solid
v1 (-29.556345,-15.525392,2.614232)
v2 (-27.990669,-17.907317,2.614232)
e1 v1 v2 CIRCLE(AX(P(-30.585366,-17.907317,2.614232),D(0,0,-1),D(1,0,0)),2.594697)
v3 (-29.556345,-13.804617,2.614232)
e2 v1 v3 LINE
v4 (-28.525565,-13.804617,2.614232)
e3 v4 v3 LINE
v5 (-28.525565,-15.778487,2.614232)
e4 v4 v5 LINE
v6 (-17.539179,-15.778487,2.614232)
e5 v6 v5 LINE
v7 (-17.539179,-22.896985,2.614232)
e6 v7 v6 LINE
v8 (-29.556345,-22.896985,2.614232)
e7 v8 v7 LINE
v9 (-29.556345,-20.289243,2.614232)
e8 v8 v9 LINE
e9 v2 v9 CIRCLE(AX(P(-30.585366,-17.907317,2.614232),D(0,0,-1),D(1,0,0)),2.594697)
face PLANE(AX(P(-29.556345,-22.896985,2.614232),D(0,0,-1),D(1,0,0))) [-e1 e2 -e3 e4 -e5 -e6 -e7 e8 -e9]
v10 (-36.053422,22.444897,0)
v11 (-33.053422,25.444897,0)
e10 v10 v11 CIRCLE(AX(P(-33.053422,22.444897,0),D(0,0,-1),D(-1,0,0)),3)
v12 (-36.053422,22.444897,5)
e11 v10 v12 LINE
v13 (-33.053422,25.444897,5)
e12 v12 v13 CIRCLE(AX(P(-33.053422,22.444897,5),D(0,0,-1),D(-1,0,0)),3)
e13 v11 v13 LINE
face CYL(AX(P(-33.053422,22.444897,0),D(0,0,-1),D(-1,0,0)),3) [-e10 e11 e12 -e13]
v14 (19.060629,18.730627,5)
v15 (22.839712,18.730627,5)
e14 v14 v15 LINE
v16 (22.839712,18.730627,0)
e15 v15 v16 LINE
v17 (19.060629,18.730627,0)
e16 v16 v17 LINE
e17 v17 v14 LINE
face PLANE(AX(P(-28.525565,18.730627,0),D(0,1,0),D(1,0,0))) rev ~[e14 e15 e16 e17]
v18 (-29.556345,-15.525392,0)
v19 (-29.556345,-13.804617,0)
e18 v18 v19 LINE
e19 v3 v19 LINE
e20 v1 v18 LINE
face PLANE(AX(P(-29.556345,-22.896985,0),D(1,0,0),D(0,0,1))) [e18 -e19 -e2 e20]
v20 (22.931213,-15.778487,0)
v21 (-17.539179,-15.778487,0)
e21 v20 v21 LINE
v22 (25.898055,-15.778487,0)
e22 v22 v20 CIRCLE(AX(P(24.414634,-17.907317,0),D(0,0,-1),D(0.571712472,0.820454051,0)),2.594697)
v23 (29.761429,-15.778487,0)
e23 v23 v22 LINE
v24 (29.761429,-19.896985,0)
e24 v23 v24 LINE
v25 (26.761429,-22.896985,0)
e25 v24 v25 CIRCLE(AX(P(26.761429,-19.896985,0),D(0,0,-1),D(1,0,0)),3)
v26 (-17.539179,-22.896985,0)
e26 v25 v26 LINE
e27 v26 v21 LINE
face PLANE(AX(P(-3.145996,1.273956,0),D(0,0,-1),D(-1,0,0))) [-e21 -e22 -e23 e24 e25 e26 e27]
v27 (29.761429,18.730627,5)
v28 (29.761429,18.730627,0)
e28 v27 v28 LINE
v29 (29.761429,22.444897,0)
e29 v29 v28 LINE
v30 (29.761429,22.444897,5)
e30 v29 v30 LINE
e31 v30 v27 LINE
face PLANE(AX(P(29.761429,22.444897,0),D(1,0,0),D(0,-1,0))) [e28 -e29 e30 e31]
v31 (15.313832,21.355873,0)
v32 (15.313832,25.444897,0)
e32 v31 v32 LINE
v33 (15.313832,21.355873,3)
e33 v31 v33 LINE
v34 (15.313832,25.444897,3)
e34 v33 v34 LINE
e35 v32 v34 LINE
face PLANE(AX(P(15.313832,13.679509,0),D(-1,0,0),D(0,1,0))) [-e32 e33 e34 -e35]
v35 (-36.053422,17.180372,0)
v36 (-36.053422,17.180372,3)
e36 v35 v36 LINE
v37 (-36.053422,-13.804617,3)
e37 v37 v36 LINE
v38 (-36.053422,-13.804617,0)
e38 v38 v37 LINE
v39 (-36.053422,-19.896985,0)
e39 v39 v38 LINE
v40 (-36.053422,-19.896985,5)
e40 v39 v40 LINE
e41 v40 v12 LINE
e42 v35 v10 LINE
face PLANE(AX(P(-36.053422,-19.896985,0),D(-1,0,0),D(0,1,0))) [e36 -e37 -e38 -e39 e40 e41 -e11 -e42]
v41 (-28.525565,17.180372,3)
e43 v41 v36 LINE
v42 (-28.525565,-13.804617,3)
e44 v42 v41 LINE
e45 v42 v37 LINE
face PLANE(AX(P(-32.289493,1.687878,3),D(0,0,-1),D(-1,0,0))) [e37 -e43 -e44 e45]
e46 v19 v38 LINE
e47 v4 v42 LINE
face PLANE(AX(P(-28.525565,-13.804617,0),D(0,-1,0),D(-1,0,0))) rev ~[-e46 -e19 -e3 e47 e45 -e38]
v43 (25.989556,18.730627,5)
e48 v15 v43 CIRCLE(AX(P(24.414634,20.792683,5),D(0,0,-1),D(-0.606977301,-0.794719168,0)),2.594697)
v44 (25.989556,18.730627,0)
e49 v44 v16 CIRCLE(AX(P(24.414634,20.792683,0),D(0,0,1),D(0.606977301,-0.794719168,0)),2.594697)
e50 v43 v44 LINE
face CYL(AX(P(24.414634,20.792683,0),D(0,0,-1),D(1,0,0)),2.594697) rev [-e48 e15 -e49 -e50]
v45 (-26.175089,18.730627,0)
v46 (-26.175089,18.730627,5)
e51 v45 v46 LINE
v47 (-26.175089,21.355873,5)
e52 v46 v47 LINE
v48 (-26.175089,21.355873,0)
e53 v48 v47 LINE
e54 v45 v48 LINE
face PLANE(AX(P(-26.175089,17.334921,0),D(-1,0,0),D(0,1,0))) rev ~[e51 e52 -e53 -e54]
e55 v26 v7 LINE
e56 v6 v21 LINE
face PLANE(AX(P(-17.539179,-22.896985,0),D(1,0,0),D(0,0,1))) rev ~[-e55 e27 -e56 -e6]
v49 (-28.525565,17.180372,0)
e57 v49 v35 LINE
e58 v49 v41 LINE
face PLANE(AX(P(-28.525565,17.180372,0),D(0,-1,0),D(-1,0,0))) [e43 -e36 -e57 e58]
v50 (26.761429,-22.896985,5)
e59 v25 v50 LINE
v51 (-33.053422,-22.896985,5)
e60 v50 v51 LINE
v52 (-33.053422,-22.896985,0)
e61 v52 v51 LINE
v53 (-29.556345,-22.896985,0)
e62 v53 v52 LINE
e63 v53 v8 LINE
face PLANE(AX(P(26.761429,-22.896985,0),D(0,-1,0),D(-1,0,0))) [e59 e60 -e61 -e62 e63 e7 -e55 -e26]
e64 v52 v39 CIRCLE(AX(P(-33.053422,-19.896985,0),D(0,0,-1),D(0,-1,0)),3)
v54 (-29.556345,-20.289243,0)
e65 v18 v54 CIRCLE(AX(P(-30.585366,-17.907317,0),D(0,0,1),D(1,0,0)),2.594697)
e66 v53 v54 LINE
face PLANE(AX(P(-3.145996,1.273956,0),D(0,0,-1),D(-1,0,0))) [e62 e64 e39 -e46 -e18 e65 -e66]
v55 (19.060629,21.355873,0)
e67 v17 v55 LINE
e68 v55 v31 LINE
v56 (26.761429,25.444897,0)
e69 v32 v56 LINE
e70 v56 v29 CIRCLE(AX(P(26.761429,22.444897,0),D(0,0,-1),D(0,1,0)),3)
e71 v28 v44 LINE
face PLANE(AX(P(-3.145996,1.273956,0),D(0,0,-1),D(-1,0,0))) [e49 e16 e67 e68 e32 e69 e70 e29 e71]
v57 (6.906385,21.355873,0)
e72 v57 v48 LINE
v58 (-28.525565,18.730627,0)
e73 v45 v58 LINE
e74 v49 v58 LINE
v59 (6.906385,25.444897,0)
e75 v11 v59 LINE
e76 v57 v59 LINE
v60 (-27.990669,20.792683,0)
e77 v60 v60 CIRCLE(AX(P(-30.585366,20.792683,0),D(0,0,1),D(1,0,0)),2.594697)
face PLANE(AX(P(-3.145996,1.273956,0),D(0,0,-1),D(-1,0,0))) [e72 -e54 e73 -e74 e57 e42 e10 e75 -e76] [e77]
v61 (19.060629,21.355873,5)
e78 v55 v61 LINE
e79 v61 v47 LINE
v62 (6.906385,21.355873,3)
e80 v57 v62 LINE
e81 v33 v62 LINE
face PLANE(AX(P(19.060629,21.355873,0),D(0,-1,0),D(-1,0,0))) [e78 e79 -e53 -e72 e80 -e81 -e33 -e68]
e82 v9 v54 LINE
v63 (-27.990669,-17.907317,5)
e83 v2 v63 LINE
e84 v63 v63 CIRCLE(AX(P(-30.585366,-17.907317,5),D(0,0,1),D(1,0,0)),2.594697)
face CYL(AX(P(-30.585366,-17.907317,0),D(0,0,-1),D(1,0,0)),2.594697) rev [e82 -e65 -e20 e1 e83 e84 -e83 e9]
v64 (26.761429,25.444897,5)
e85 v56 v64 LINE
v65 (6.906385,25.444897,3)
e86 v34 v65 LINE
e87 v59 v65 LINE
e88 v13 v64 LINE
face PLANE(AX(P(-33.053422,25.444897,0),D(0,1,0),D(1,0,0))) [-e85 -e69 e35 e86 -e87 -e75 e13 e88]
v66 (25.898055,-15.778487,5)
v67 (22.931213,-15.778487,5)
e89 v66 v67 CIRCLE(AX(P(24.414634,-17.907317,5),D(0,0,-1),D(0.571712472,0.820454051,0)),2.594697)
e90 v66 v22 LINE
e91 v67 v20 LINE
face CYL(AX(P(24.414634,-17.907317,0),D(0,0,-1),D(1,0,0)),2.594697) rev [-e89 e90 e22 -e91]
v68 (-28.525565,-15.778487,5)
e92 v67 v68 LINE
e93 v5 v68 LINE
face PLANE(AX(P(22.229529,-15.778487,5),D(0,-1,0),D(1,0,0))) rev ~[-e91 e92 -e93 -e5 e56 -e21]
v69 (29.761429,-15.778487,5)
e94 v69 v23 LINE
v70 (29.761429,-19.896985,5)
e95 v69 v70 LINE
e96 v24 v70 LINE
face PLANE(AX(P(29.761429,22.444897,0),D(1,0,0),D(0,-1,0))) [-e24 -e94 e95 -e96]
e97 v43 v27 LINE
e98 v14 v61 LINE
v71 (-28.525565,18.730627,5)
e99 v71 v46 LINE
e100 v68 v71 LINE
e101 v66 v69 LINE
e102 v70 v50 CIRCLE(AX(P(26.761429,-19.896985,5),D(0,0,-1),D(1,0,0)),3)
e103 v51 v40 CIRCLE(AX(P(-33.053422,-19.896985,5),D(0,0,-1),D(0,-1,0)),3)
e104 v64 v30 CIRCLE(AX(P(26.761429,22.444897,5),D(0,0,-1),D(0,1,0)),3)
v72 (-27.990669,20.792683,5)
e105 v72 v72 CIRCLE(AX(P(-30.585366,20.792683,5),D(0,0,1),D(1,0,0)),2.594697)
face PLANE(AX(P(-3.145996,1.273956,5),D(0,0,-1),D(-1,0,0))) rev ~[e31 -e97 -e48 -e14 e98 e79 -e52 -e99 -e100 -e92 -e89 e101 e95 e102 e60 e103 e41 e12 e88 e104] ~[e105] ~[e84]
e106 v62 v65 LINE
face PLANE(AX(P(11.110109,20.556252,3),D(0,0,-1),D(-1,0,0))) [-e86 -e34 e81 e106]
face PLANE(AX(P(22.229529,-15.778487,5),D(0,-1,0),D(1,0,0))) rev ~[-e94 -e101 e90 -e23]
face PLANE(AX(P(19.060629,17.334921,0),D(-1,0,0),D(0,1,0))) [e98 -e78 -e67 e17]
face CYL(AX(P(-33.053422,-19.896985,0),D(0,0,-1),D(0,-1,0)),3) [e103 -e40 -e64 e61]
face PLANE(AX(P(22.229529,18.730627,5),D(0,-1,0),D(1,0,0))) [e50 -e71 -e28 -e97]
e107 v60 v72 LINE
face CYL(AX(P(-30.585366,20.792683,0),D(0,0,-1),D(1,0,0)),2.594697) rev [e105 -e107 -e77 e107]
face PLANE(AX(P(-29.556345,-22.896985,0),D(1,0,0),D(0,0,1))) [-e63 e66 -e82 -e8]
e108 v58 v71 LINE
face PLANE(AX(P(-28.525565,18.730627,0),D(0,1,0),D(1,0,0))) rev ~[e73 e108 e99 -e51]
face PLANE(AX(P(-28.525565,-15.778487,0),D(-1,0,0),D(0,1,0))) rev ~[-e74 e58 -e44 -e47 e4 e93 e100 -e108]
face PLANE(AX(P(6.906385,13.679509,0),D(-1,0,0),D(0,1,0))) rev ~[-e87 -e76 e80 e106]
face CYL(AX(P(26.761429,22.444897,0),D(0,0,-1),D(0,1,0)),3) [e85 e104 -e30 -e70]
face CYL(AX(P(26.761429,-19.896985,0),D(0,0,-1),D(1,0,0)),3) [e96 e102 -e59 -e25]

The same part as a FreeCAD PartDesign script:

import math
import FreeCAD as App
import Part
import Sketcher
from FreeCAD import Vector
Q = App.Units.Quantity

doc = App.newDocument("Part")
body = doc.addObject("PartDesign::Body", "Body")

sketch1 = body.newObject("Sketcher::SketchObject", "Sketch")
sketch1.AttachmentSupport = (doc.getObject("XY_Plane"), [""])
sketch1.MapMode = "FlatFace"
sketch1.addGeometry([
    Part.LineSegment(Vector(26.8, 25.4, 0), Vector(-33.1, 25.4, 0)),
    Part.ArcOfCircle(Part.Circle(Vector(-33.1, 22.4, 0), Vector(0, 0, 1), 3), math.radians(90), math.radians(180)),
    Part.LineSegment(Vector(-36.1, 22.4, 0), Vector(-36.1, -19.9, 0)),
    Part.ArcOfCircle(Part.Circle(Vector(-33.1, -19.9, 0), Vector(0, 0, 1), 3), math.radians(180), math.radians(270)),
    Part.LineSegment(Vector(-33.1, -22.9, 0), Vector(26.8, -22.9, 0)),
    Part.ArcOfCircle(Part.Circle(Vector(26.8, -19.9, 0), Vector(0, 0, 1), 3), math.radians(-90), math.radians(0)),
    Part.LineSegment(Vector(29.8, -19.9, 0), Vector(29.8, 22.4, 0)),
    Part.ArcOfCircle(Part.Circle(Vector(26.8, 22.4, 0), Vector(0, 0, 1), 3), math.radians(0), math.radians(90)),
    Part.Circle(Vector(24.4, -17.9, 0), Vector(0, 0, 1), 2.6),
    Part.Circle(Vector(-30.6, -17.9, 0), Vector(0, 0, 1), 2.6),
    Part.Circle(Vector(24.4, 20.8, 0), Vector(0, 0, 1), 2.6),
    Part.LineSegment(Vector(-28.5, -15.8, 0), Vector(-28.5, 18.7, 0)),
    Part.LineSegment(Vector(-28.5, 18.7, 0), Vector(22.2, 18.7, 0)),
    Part.LineSegment(Vector(22.2, 18.7, 0), Vector(22.2, -15.8, 0)),
    Part.LineSegment(Vector(22.2, -15.8, 0), Vector(-28.5, -15.8, 0)),
    Part.Circle(Vector(-30.6, 20.8, 0), Vector(0, 0, 1), 2.6),
], False)
sketch1.addConstraint([
    Sketcher.Constraint("Tangent", 0, 2, 1, 1),
    Sketcher.Constraint("Tangent", 1, 2, 2, 1),
    Sketcher.Constraint("Tangent", 2, 2, 3, 1),
    Sketcher.Constraint("Tangent", 3, 2, 4, 1),
    Sketcher.Constraint("Tangent", 4, 2, 5, 1),
    Sketcher.Constraint("Tangent", 5, 2, 6, 1),
    Sketcher.Constraint("Tangent", 6, 2, 7, 1),
    Sketcher.Constraint("Tangent", 7, 2, 0, 1),
    Sketcher.Constraint("Coincident", 11, 2, 12, 1),
    Sketcher.Constraint("Coincident", 12, 2, 13, 1),
    Sketcher.Constraint("Coincident", 13, 2, 14, 1),
    Sketcher.Constraint("Coincident", 14, 2, 11, 1),
    Sketcher.Constraint("Horizontal", 0),
    Sketcher.Constraint("Vertical", 2),
    Sketcher.Constraint("Horizontal", 4),
    Sketcher.Constraint("Vertical", 6),
    Sketcher.Constraint("Vertical", 11),
    Sketcher.Constraint("Horizontal", 12),
    Sketcher.Constraint("Vertical", 13),
    Sketcher.Constraint("Horizontal", 14),
    Sketcher.Constraint("Equal", 1, 3),
    Sketcher.Constraint("Equal", 3, 5),
    Sketcher.Constraint("Equal", 5, 7),
    Sketcher.Constraint("Equal", 8, 9),
    Sketcher.Constraint("Equal", 9, 10),
    Sketcher.Constraint("Equal", 10, 15),
    Sketcher.Constraint("Horizontal", 8, 3, 9, 3),
    Sketcher.Constraint("Horizontal", 10, 3, 15, 3),
    Sketcher.Constraint("Vertical", 8, 3, 10, 3),
    Sketcher.Constraint("Vertical", 9, 3, 15, 3),
    Sketcher.Constraint("Radius", 1, Q("3 mm")),
    Sketcher.Constraint("DistanceX", 9, 3, 8, 3, Q("55 mm")),
    Sketcher.Constraint("DistanceY", 8, 3, 10, 3, Q("38.7 mm")),
    Sketcher.Constraint("Diameter", 8, Q("5.189394 mm")),
    Sketcher.Constraint("DistanceX", 0, 2, 0, 1, Q("59.814851 mm")),
    Sketcher.Constraint("DistanceX", 15, 3, 11, 2, Q("2.059801 mm")),
    Sketcher.Constraint("DistanceX", 12, 2, 7, 3, Q("4.5319 mm")),
    Sketcher.Constraint("DistanceX", 12, 1, 12, 2, Q("50.755093 mm")),
    Sketcher.Constraint("DistanceY", 2, 2, 2, 1, Q("42.341882 mm")),
    Sketcher.Constraint("DistanceY", 11, 1, 11, 2, Q("34.509115 mm")),
    Sketcher.Constraint("DistanceX", -1, 1, 5, 3, Q("26.761429 mm")),
    Sketcher.Constraint("DistanceY", 11, 2, 1, 3, Q("3.71427 mm")),
    Sketcher.Constraint("DistanceY", 8, 3, 13, 2, Q("2.12883 mm")),
    Sketcher.Constraint("DistanceY", -1, 1, 1, 3, Q("22.444897 mm")),
])
pad1 = body.newObject("PartDesign::Pad", "Pad")
pad1.Profile = sketch1
pad1.Length = 5

sketch2 = body.newObject("Sketcher::SketchObject", "Sketch001")
sketch2.AttachmentSupport = (doc.getObject("XZ_Plane"), [""])
sketch2.MapMode = "FlatFace"
sketch2.AttachmentOffset = App.Placement(Vector(0, 0, 22.896985), App.Rotation())
sketch2.addGeometry([
    Part.LineSegment(Vector(-29.6, 2.6, 0), Vector(-29.6, 0, 0)),
    Part.LineSegment(Vector(-29.6, 0, 0), Vector(-17.5, 0, 0)),
    Part.LineSegment(Vector(-17.5, 0, 0), Vector(-17.5, 2.6, 0)),
    Part.LineSegment(Vector(-17.5, 2.6, 0), Vector(-29.6, 2.6, 0)),
], False)
sketch2.addConstraint([
    Sketcher.Constraint("Coincident", 0, 2, 1, 1),
    Sketcher.Constraint("Coincident", 1, 2, 2, 1),
    Sketcher.Constraint("Coincident", 2, 2, 3, 1),
    Sketcher.Constraint("Coincident", 3, 2, 0, 1),
    Sketcher.Constraint("Vertical", 0),
    Sketcher.Constraint("Horizontal", 1),
    Sketcher.Constraint("Vertical", 2),
    Sketcher.Constraint("Horizontal", 3),
    Sketcher.Constraint("PointOnObject", 0, 2, -1),
    Sketcher.Constraint("DistanceY", 0, 2, 0, 1, Q("2.614232 mm")),
    Sketcher.Constraint("DistanceX", 1, 1, 1, 2, Q("12.017165 mm")),
    Sketcher.Constraint("DistanceX", 1, 2, -1, 1, Q("17.539179 mm")),
])
pocket1 = body.newObject("PartDesign::Pocket", "Pocket")
pocket1.Profile = sketch2
pocket1.Length = 10

sketch3 = body.newObject("Sketcher::SketchObject", "Sketch002")
sketch3.AttachmentSupport = (doc.getObject("XY_Plane"), [""])
sketch3.MapMode = "FlatFace"
sketch3.addGeometry([
    Part.LineSegment(Vector(-29, 17, 0), Vector(-29, -14, 0)),
    Part.LineSegment(Vector(-29, -14, 0), Vector(-36, -14, 0)),
    Part.LineSegment(Vector(-36, -14, 0), Vector(-36, 17, 0)),
    Part.LineSegment(Vector(-36, 17, 0), Vector(-29, 17, 0)),
], False)
sketch3.addConstraint([
    Sketcher.Constraint("Coincident", 0, 2, 1, 1),
    Sketcher.Constraint("Coincident", 1, 2, 2, 1),
    Sketcher.Constraint("Coincident", 2, 2, 3, 1),
    Sketcher.Constraint("Coincident", 3, 2, 0, 1),
    Sketcher.Constraint("Vertical", 0),
    Sketcher.Constraint("Horizontal", 1),
    Sketcher.Constraint("Vertical", 2),
    Sketcher.Constraint("Horizontal", 3),
    Sketcher.Constraint("DistanceY", 0, 2, 0, 1, Q("30.984989 mm")),
    Sketcher.Constraint("DistanceX", 1, 2, 1, 1, Q("7.527857 mm")),
    Sketcher.Constraint("DistanceX", 0, 2, -1, 1, Q("28.525565 mm")),
    Sketcher.Constraint("DistanceY", 0, 2, -1, 1, Q("13.804617 mm")),
])
pocket2 = body.newObject("PartDesign::Pocket", "Pocket001")
pocket2.Profile = sketch3
pocket2.Length = 3
pocket2.Reversed = True

sketch4 = body.newObject("Sketcher::SketchObject", "Sketch003")
sketch4.AttachmentSupport = (doc.getObject("XY_Plane"), [""])
sketch4.MapMode = "FlatFace"
sketch4.AttachmentOffset = App.Placement(Vector(0, 0, 5), App.Rotation())
sketch4.addGeometry([
    Part.LineSegment(Vector(22, 19, 0), Vector(22, -16, 0)),
    Part.LineSegment(Vector(22, -16, 0), Vector(34, -16, 0)),
    Part.LineSegment(Vector(34, -16, 0), Vector(34, 19, 0)),
    Part.LineSegment(Vector(34, 19, 0), Vector(22, 19, 0)),
], False)
sketch4.addConstraint([
    Sketcher.Constraint("Coincident", 0, 2, 1, 1),
    Sketcher.Constraint("Coincident", 1, 2, 2, 1),
    Sketcher.Constraint("Coincident", 2, 2, 3, 1),
    Sketcher.Constraint("Coincident", 3, 2, 0, 1),
    Sketcher.Constraint("Vertical", 0),
    Sketcher.Constraint("Horizontal", 1),
    Sketcher.Constraint("Vertical", 2),
    Sketcher.Constraint("Horizontal", 3),
    Sketcher.Constraint("DistanceX", 1, 1, 1, 2, Q("11.818287 mm")),
    Sketcher.Constraint("DistanceY", 0, 2, 0, 1, Q("34.509115 mm")),
    Sketcher.Constraint("DistanceX", -1, 1, 0, 2, Q("22.229529 mm")),
    Sketcher.Constraint("DistanceY", 0, 2, -1, 1, Q("15.778487 mm")),
])
pocket3 = body.newObject("PartDesign::Pocket", "Pocket002")
pocket3.Profile = sketch4
pocket3.Length = 10

sketch5 = body.newObject("Sketcher::SketchObject", "Sketch004")
sketch5.AttachmentSupport = (doc.getObject("XY_Plane"), [""])
sketch5.MapMode = "FlatFace"
sketch5.addGeometry([
    Part.LineSegment(Vector(15, 27, 0), Vector(15, 14, 0)),
    Part.LineSegment(Vector(15, 14, 0), Vector(7, 14, 0)),
    Part.LineSegment(Vector(7, 14, 0), Vector(7, 27, 0)),
    Part.LineSegment(Vector(7, 27, 0), Vector(15, 27, 0)),
], False)
sketch5.addConstraint([
    Sketcher.Constraint("Coincident", 0, 2, 1, 1),
    Sketcher.Constraint("Coincident", 1, 2, 2, 1),
    Sketcher.Constraint("Coincident", 2, 2, 3, 1),
    Sketcher.Constraint("Coincident", 3, 2, 0, 1),
    Sketcher.Constraint("Vertical", 0),
    Sketcher.Constraint("Horizontal", 1),
    Sketcher.Constraint("Vertical", 2),
    Sketcher.Constraint("Horizontal", 3),
    Sketcher.Constraint("DistanceX", 1, 2, 1, 1, Q("8.407447 mm")),
    Sketcher.Constraint("DistanceY", 0, 2, 0, 1, Q("13.753486 mm")),
    Sketcher.Constraint("DistanceX", -1, 1, 0, 2, Q("15.313832 mm")),
    Sketcher.Constraint("DistanceY", -1, 1, 0, 2, Q("13.679509 mm")),
])
pocket4 = body.newObject("PartDesign::Pocket", "Pocket003")
pocket4.Profile = sketch5
pocket4.Length = 3
pocket4.Reversed = True

sketch6 = body.newObject("Sketcher::SketchObject", "Sketch005")
sketch6.AttachmentSupport = (doc.getObject("XY_Plane"), [""])
sketch6.MapMode = "FlatFace"
sketch6.addGeometry([
    Part.LineSegment(Vector(19.1, 21.4, 0), Vector(19.1, 17.3, 0)),
    Part.LineSegment(Vector(19.1, 17.3, 0), Vector(-26.2, 17.3, 0)),
    Part.LineSegment(Vector(-26.2, 17.3, 0), Vector(-26.2, 21.4, 0)),
    Part.LineSegment(Vector(-26.2, 21.4, 0), Vector(19.1, 21.4, 0)),
], False)
sketch6.addConstraint([
    Sketcher.Constraint("Coincident", 0, 2, 1, 1),
    Sketcher.Constraint("Coincident", 1, 2, 2, 1),
    Sketcher.Constraint("Coincident", 2, 2, 3, 1),
    Sketcher.Constraint("Coincident", 3, 2, 0, 1),
    Sketcher.Constraint("Vertical", 0),
    Sketcher.Constraint("Horizontal", 1),
    Sketcher.Constraint("Vertical", 2),
    Sketcher.Constraint("Horizontal", 3),
    Sketcher.Constraint("DistanceX", 1, 2, 1, 1, Q("45.235718 mm")),
    Sketcher.Constraint("DistanceY", 0, 2, 0, 1, Q("4.020953 mm")),
    Sketcher.Constraint("DistanceX", -1, 1, 0, 2, Q("19.060629 mm")),
    Sketcher.Constraint("DistanceY", -1, 1, 0, 2, Q("17.334921 mm")),
])
pocket5 = body.newObject("PartDesign::Pocket", "Pocket004")
pocket5.Profile = sketch6
pocket5.Length = 10
pocket5.Reversed = True

doc.recompute()
